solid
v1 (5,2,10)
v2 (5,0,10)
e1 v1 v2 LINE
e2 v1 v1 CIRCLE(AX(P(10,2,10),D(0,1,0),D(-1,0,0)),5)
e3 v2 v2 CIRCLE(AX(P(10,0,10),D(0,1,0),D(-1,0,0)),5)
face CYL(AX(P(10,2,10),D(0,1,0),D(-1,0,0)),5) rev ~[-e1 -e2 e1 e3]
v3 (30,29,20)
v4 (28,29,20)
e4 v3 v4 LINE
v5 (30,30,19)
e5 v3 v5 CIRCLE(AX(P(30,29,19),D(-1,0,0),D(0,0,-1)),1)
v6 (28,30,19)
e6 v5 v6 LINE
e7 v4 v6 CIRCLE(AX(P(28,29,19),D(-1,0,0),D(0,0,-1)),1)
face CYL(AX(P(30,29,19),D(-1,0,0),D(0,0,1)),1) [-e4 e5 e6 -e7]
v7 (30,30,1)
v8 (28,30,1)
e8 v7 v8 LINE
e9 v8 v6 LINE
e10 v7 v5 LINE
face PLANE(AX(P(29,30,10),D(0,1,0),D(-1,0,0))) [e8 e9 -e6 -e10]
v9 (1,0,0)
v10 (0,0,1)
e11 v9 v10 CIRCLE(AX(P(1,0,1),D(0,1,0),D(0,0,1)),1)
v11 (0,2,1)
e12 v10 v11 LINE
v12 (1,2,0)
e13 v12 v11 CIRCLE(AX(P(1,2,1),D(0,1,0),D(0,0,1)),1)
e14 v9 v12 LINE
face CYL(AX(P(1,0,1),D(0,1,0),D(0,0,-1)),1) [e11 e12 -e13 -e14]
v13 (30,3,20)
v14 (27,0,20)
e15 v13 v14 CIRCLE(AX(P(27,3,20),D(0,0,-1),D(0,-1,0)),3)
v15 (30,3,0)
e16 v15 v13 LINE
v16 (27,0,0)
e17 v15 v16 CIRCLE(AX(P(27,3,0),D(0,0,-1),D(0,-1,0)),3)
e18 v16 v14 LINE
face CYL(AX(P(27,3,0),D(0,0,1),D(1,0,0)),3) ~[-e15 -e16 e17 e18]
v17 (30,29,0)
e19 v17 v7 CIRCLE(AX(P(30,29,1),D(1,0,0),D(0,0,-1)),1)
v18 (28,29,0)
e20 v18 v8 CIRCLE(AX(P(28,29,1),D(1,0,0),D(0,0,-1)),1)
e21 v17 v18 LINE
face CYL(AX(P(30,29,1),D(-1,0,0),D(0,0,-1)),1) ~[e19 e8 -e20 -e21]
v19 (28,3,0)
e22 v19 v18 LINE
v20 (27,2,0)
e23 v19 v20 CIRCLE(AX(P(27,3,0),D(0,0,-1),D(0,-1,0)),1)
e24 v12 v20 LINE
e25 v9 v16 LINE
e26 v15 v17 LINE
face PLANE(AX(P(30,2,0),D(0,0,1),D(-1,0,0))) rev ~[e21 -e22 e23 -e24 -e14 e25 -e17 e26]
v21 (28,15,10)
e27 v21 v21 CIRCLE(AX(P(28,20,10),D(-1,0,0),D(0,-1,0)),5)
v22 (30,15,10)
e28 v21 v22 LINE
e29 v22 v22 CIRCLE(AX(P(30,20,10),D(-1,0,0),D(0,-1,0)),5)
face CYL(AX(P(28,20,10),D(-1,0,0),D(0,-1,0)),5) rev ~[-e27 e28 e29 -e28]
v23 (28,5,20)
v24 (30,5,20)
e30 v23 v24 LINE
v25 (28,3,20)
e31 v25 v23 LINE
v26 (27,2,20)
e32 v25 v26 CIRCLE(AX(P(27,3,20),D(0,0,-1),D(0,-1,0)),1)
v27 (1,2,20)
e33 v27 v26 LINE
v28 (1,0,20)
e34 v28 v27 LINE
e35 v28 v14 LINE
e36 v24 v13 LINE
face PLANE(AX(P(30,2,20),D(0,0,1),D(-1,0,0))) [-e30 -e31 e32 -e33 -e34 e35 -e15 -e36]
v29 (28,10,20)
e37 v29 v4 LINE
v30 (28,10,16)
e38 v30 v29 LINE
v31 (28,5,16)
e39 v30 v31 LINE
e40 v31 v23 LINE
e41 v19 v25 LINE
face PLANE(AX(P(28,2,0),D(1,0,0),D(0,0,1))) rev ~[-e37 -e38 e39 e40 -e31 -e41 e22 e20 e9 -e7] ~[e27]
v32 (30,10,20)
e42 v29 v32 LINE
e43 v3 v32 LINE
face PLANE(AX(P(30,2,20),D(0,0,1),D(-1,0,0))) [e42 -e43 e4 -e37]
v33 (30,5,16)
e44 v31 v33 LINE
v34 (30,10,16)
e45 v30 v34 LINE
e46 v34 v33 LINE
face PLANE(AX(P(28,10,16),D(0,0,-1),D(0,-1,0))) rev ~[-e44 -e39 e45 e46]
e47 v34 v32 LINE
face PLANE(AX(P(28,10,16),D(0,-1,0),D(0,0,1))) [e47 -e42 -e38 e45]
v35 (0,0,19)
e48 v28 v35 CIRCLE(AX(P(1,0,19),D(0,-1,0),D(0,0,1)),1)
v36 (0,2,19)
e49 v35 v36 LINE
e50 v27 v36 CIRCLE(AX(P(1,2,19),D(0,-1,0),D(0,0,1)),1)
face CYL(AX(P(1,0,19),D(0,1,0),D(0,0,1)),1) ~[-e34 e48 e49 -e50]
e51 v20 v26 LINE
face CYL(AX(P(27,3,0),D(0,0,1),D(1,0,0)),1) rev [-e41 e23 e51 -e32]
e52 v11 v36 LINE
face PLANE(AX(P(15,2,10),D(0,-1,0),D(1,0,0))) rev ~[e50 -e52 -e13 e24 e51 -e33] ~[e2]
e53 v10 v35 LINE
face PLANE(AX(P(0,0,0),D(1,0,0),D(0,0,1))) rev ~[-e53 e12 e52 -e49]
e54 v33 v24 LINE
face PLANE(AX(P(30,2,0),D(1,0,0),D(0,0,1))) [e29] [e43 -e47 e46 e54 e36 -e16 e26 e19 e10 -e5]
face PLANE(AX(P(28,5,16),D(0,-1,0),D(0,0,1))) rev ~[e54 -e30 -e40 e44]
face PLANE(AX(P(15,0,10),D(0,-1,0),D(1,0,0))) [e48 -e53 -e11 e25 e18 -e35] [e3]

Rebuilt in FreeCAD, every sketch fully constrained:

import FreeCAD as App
import Part
import Sketcher
from FreeCAD import Vector


def edges_at(feature, points):
    """Names of the edges that pass closest to the given points."""
    edges = feature.Shape.Edges
    near = lambda p: min(range(len(edges)), key=lambda i: edges[i].distToShape(Part.Vertex(*p))[0])
    return sorted({f"Edge{near(p) + 1}" for p in points})

doc = App.newDocument("Part")
params = doc.addObject("Spreadsheet::Sheet", "Params")
for row, (alias, value) in enumerate([
    ("sketch1_width", "30 mm"),
    ("sketch1_height", "20 mm"),
    ("pad1_length", "2 mm"),
    ("sketch2_width", "2 mm"),
    ("sketch2_height", "20 mm"),
    ("pad2_length", "28 mm"),
    ("sketch3_diameter", "10 mm"),
    ("sketch4_diameter", "10 mm"),
    ("sketch5_width", "5 mm"),
    ("sketch5_height", "4 mm"),
    ("fillet_radius", "1 mm"),
    ("fillet2_radius", "3 mm"),
], start=1):
    params.set(f"A{row}", alias)
    params.set(f"B{row}", "=" + value)
    params.setAlias(f"B{row}", alias)

body = doc.addObject("PartDesign::Body", "Body")

sketch1 = body.newObject("Sketcher::SketchObject", "Sketch")
sketch1.AttachmentSupport = (doc.getObject("XZ_Plane"), [""])
sketch1.MapMode = "FlatFace"
sketch1.addGeometry([
    Part.LineSegment(Vector(0, 20, 0), Vector(0, 0, 0)),
    Part.LineSegment(Vector(0, 0, 0), Vector(30, 0, 0)),
    Part.LineSegment(Vector(30, 0, 0), Vector(30, 20, 0)),
    Part.LineSegment(Vector(30, 20, 0), Vector(0, 20, 0)),
], False)
sketch1.addConstraint([
    Sketcher.Constraint("Coincident", 0, 2, 1, 1),
    Sketcher.Constraint("Coincident", 1, 2, 2, 1),
    Sketcher.Constraint("Coincident", 2, 2, 3, 1),
    Sketcher.Constraint("Coincident", 3, 2, 0, 1),
    Sketcher.Constraint("Vertical", 0),
    Sketcher.Constraint("Horizontal", 1),
    Sketcher.Constraint("Vertical", 2),
    Sketcher.Constraint("Horizontal", 3),
    Sketcher.Constraint("Coincident", 0, 2, -1, 1),
    Sketcher.Constraint("DistanceX", 1, 1, 1, 2, 30.0),
    Sketcher.Constraint("DistanceY", 0, 2, 0, 1, 20.0),
])
sketch1.setExpression("Constraints[9]", "Params.sketch1_width")
sketch1.setExpression("Constraints[10]", "Params.sketch1_height")
pad1 = body.newObject("PartDesign::Pad", "Pad")
pad1.Profile = sketch1
pad1.setExpression("Length", "Params.pad1_length")
pad1.Reversed = True

sketch2 = body.newObject("Sketcher::SketchObject", "Sketch001")
sketch2.AttachmentSupport = (doc.getObject("XZ_Plane"), [""])
sketch2.MapMode = "FlatFace"
sketch2.AttachmentOffset = App.Placement(Vector(0, 0, -2), App.Rotation())
sketch2.addGeometry([
    Part.LineSegment(Vector(30, 20, 0), Vector(30, 0, 0)),
    Part.LineSegment(Vector(30, 0, 0), Vector(28, 0, 0)),
    Part.LineSegment(Vector(28, 0, 0), Vector(28, 20, 0)),
    Part.LineSegment(Vector(28, 20, 0), Vector(30, 20, 0)),
], False)
sketch2.addConstraint([
    Sketcher.Constraint("Coincident", 0, 2, 1, 1),
    Sketcher.Constraint("Coincident", 1, 2, 2, 1),
    Sketcher.Constraint("Coincident", 2, 2, 3, 1),
    Sketcher.Constraint("Coincident", 3, 2, 0, 1),
    Sketcher.Constraint("Vertical", 0),
    Sketcher.Constraint("Horizontal", 1),
    Sketcher.Constraint("Vertical", 2),
    Sketcher.Constraint("Horizontal", 3),
    Sketcher.Constraint("PointOnObject", 0, 2, -1),
    Sketcher.Constraint("DistanceX", 1, 2, 1, 1, 2.0),
    Sketcher.Constraint("DistanceY", 0, 2, 0, 1, 20.0),
    Sketcher.Constraint("DistanceX", -1, 1, 0, 2, 30.0),
])
sketch2.setExpression("Constraints[9]", "Params.sketch2_width")
sketch2.setExpression("Constraints[10]", "Params.sketch2_height")
pad2 = body.newObject("PartDesign::Pad", "Pad001")
pad2.Profile = sketch2
pad2.setExpression("Length", "Params.pad2_length")
pad2.Reversed = True

sketch3 = body.newObject("Sketcher::SketchObject", "Sketch002")
sketch3.AttachmentSupport = (doc.getObject("XZ_Plane"), [""])
sketch3.MapMode = "FlatFace"
sketch3.AttachmentOffset = App.Placement(Vector(0, 0, -2), App.Rotation())
sketch3.addGeometry(Part.Circle(Vector(10, 10, 0), Vector(0, 0, 1), 5), False)
sketch3.addConstraint([
    Sketcher.Constraint("Diameter", 0, 10.0),
    Sketcher.Constraint("DistanceX", -1, 1, 0, 3, 10.0),
    Sketcher.Constraint("DistanceY", -1, 1, 0, 3, 10.0),
])
sketch3.setExpression("Constraints[0]", "Params.sketch3_diameter")
pocket1 = body.newObject("PartDesign::Pocket", "Pocket")
pocket1.Profile = sketch3
pocket1.Type = "ThroughAll"
pocket1.Reversed = True

sketch4 = body.newObject("Sketcher::SketchObject", "Sketch003")
sketch4.AttachmentSupport = (doc.getObject("YZ_Plane"), [""])
sketch4.MapMode = "FlatFace"
sketch4.AttachmentOffset = App.Placement(Vector(0, 0, 28), App.Rotation())
sketch4.addGeometry(Part.Circle(Vector(20, 10, 0), Vector(0, 0, 1), 5), False)
sketch4.addConstraint([
    Sketcher.Constraint("Diameter", 0, 10.0),
    Sketcher.Constraint("DistanceX", -1, 1, 0, 3, 20.0),
    Sketcher.Constraint("DistanceY", -1, 1, 0, 3, 10.0),
])
sketch4.setExpression("Constraints[0]", "Params.sketch4_diameter")
pocket2 = body.newObject("PartDesign::Pocket", "Pocket001")
pocket2.Profile = sketch4
pocket2.Type = "ThroughAll"
pocket2.Reversed = True

sketch5 = body.newObject("Sketcher::SketchObject", "Sketch004")
sketch5.AttachmentSupport = (doc.getObject("YZ_Plane"), [""])
sketch5.MapMode = "FlatFace"
sketch5.AttachmentOffset = App.Placement(Vector(0, 0, 28), App.Rotation())
sketch5.addGeometry([
    Part.LineSegment(Vector(10, 20, 0), Vector(10, 16, 0)),
    Part.LineSegment(Vector(10, 16, 0), Vector(5, 16, 0)),
    Part.LineSegment(Vector(5, 16, 0), Vector(5, 20, 0)),
    Part.LineSegment(Vector(5, 20, 0), Vector(10, 20, 0)),
], False)
sketch5.addConstraint([
    Sketcher.Constraint("Coincident", 0, 2, 1, 1),
    Sketcher.Constraint("Coincident", 1, 2, 2, 1),
    Sketcher.Constraint("Coincident", 2, 2, 3, 1),
    Sketcher.Constraint("Coincident", 3, 2, 0, 1),
    Sketcher.Constraint("Vertical", 0),
    Sketcher.Constraint("Horizontal", 1),
    Sketcher.Constraint("Vertical", 2),
    Sketcher.Constraint("Horizontal", 3),
    Sketcher.Constraint("DistanceX", 1, 2, 1, 1, 5.0),
    Sketcher.Constraint("DistanceY", 0, 2, 0, 1, 4.0),
    Sketcher.Constraint("DistanceX", -1, 1, 0, 2, 10.0),
    Sketcher.Constraint("DistanceY", -1, 1, 0, 2, 16.0),
])
sketch5.setExpression("Constraints[8]", "Params.sketch5_width")
sketch5.setExpression("Constraints[9]", "Params.sketch5_height")
pocket3 = body.newObject("PartDesign::Pocket", "Pocket002")
pocket3.Profile = sketch5
pocket3.Type = "ThroughAll"
pocket3.Reversed = True
doc.recompute()

fillet = body.newObject("PartDesign::Fillet", "Fillet")
fillet.Base = (pocket3, edges_at(pocket3, [
    (28, 2, 10),
    (0, 1, 20),
    (0, 1, 0),
    (29, 30, 20),
    (29, 30, 0),
]))
fillet.setExpression("Radius", "Params.fillet_radius")
doc.recompute()

fillet2 = body.newObject("PartDesign::Fillet", "Fillet001")
fillet2.Base = (fillet, edges_at(fillet, [(30, 0, 10)]))
fillet2.setExpression("Radius", "Params.fillet2_radius")

doc.recompute()
